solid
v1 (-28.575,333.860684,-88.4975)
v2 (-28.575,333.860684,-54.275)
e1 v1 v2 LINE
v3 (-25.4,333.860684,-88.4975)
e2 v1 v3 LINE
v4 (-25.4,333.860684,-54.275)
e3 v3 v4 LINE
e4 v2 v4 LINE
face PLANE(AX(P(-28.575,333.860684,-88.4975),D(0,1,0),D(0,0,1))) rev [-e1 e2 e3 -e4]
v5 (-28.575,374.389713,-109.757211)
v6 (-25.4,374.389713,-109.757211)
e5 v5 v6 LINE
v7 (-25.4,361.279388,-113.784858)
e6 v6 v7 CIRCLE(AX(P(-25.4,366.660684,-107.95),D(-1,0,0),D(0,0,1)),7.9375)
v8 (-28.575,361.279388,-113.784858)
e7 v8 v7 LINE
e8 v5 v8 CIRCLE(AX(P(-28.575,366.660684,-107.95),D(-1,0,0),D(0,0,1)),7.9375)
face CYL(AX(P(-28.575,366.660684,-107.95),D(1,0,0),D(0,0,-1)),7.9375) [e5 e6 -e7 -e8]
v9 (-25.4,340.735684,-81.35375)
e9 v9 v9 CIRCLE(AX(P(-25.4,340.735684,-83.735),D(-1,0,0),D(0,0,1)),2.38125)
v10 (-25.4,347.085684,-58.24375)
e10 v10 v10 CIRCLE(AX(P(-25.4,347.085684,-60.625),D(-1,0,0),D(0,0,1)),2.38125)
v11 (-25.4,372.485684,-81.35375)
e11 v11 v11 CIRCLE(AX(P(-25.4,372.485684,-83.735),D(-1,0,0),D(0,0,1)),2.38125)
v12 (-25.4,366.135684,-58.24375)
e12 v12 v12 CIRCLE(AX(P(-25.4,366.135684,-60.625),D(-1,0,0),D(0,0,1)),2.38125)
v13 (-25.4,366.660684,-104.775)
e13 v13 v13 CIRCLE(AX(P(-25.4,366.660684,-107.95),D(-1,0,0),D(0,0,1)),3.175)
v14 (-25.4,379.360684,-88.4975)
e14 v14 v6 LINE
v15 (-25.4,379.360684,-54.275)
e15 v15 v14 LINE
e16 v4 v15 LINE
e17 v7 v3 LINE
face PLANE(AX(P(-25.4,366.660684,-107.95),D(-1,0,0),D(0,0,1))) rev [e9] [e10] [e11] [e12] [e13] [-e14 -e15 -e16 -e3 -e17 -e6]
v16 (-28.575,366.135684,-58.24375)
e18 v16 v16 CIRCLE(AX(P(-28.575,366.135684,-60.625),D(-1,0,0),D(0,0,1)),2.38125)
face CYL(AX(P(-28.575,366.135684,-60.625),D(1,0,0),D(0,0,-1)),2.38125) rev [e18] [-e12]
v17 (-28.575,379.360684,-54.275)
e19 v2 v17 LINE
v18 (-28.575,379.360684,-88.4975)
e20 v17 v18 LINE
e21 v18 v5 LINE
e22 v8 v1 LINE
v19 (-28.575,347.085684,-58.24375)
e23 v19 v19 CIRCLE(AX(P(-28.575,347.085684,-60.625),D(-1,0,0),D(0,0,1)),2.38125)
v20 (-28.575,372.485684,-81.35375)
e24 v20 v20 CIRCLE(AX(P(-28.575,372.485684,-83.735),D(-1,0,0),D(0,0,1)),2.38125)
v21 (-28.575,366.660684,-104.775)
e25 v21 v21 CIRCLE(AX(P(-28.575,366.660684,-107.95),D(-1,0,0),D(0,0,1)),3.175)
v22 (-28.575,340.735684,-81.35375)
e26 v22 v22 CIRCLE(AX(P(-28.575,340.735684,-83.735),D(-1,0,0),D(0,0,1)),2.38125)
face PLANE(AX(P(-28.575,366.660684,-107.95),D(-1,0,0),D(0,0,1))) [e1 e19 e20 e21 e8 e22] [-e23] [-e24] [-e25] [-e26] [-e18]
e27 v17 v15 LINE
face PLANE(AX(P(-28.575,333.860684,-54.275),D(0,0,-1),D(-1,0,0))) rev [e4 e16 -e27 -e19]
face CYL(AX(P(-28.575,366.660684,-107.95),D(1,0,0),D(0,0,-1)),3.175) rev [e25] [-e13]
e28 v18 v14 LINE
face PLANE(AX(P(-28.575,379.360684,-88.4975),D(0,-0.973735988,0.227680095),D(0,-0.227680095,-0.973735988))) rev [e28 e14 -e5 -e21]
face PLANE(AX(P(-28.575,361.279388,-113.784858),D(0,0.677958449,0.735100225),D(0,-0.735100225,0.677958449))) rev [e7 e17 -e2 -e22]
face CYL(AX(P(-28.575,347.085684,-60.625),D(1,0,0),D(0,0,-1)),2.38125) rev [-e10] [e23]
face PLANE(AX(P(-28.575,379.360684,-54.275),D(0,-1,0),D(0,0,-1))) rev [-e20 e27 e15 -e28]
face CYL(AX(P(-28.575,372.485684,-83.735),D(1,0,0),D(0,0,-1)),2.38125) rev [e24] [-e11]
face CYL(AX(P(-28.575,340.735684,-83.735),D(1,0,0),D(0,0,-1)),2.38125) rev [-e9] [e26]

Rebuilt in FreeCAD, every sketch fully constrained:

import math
import FreeCAD as App
import Part
import Sketcher
Q = App.Units.Quantity

doc = App.newDocument("Part")
params = doc.addObject("Spreadsheet::Sheet", "Params")
for row, (alias, value) in enumerate([
    ("sketch1_diameter", "0.25 in"),
    ("sketch1_diameter2", "0.1875 in"),
    ("sketch1_radius", "0.3125 in"),
    ("pad1_length", "0.125 in"),
], start=1):
    params.set(f"A{row}", alias)
    params.set(f"B{row}", "=" + value)
    params.setAlias(f"B{row}", alias)

body = doc.addObject("PartDesign::Body", "Body")

sketch1 = doc.addObject("Sketcher::SketchObject", "Sketch")
body.addObject(sketch1)
sketch1.AttachmentSupport = (doc.YZ_Plane, [""])
sketch1.MapMode = "FlatFace"
sketch1.AttachmentOffset = App.Placement(App.Vector(0, 0, -1 * 25.4), App.Rotation())
sketch1.addGeometry(Part.LineSegment(App.Vector(379.360684, -54.275, 0), App.Vector(379.360684, -88.4975, 0)), False)
sketch1.addGeometry(Part.LineSegment(App.Vector(379.360684, -88.4975, 0), App.Vector(374.389713, -109.757211, 0)), False)
sketch1.addGeometry(Part.ArcOfCircle(Part.Circle(App.Vector(366.660684, -107.95, 0), App.Vector(0, 0, 1), 7.9375), math.radians(-132.684314), math.radians(-13.160528)), False)
sketch1.addGeometry(Part.LineSegment(App.Vector(361.279388, -113.784858, 0), App.Vector(333.860684, -88.4975, 0)), False)
sketch1.addGeometry(Part.LineSegment(App.Vector(333.860684, -88.4975, 0), App.Vector(333.860684, -54.275, 0)), False)
sketch1.addGeometry(Part.LineSegment(App.Vector(333.860684, -54.275, 0), App.Vector(379.360684, -54.275, 0)), False)
sketch1.addGeometry(Part.Circle(App.Vector(340.735684, -83.735, 0), App.Vector(0, 0, 1), 2.38125), False)
sketch1.addGeometry(Part.Circle(App.Vector(347.085684, -60.625, 0), App.Vector(0, 0, 1), 2.38125), False)
sketch1.addGeometry(Part.Circle(App.Vector(366.660684, -107.95, 0), App.Vector(0, 0, 1), 3.175), False)
sketch1.addGeometry(Part.Circle(App.Vector(372.485684, -83.735, 0), App.Vector(0, 0, 1), 2.38125), False)
sketch1.addGeometry(Part.Circle(App.Vector(366.135684, -60.625, 0), App.Vector(0, 0, 1), 2.38125), False)
sketch1.addConstraint(Sketcher.Constraint("Coincident", 0, 2, 1, 1))
sketch1.addConstraint(Sketcher.Constraint("Tangent", 1, 2, 2, 2))
sketch1.addConstraint(Sketcher.Constraint("Tangent", 2, 1, 3, 1))
sketch1.addConstraint(Sketcher.Constraint("Coincident", 3, 2, 4, 1))
sketch1.addConstraint(Sketcher.Constraint("Coincident", 4, 2, 5, 1))
sketch1.addConstraint(Sketcher.Constraint("Coincident", 5, 2, 0, 1))
sketch1.addConstraint(Sketcher.Constraint("Vertical", 0))
sketch1.addConstraint(Sketcher.Constraint("Vertical", 4))
sketch1.addConstraint(Sketcher.Constraint("Horizontal", 5))
sketch1.addConstraint(Sketcher.Constraint("Coincident", 8, 3, 2, 3))
sketch1.addConstraint(Sketcher.Constraint("Equal", 6, 7))
sketch1.addConstraint(Sketcher.Constraint("Equal", 7, 9))
sketch1.addConstraint(Sketcher.Constraint("Equal", 9, 10))
sketch1.addConstraint(Sketcher.Constraint("Horizontal", 6, 3, 9, 3))
sketch1.addConstraint(Sketcher.Constraint("Horizontal", 7, 3, 10, 3))
sketch1.addConstraint(Sketcher.Constraint("Horizontal", 0, 2, 3, 2))
sketch1.addConstraint(Sketcher.Constraint("Diameter", 8, Q("0.25 in")))
sketch1.addConstraint(Sketcher.Constraint("Diameter", 6, Q("0.1875 in")))
sketch1.addConstraint(Sketcher.Constraint("Radius", 2, Q("0.3125 in")))
sketch1.addConstraint(Sketcher.Constraint("DistanceX", 7, 3, 9, 3, Q("1 in")))
sketch1.addConstraint(Sketcher.Constraint("DistanceX", 6, 3, 10, 3, Q("1 in")))
sketch1.addConstraint(Sketcher.Constraint("DistanceX", 8, 3, 0, 2, Q("0.5 in")))
sketch1.addConstraint(Sketcher.Constraint("DistanceY", 2, 3, -1, 1, Q("4.25 in")))
sketch1.addConstraint(Sketcher.Constraint("DistanceX", 6, 3, 7, 3, Q("0.25 in")))
sketch1.addConstraint(Sketcher.Constraint("DistanceY", 7, 3, 4, 2, Q("0.25 in")))
sketch1.addConstraint(Sketcher.Constraint("DistanceY", 0, 2, 9, 3, Q("0.1875 in")))
sketch1.addConstraint(Sketcher.Constraint("DistanceX", 5, 1, 5, 2, Q("45.5 mm")))
sketch1.addConstraint(Sketcher.Constraint("DistanceY", 0, 2, 0, 1, Q("34.2225 mm")))
sketch1.addConstraint(Sketcher.Constraint("DistanceY", 6, 3, -1, 1, Q("83.735 mm")))
sketch1.addConstraint(Sketcher.Constraint("DistanceX", 6, 3, 2, 3, Q("25.925 mm")))
sketch1.addConstraint(Sketcher.Constraint("DistanceX", -1, 1, 2, 1, Q("361.279388 mm")))
sketch1.setExpression("Constraints[16]", "Params.sketch1_diameter")
sketch1.setExpression("Constraints[17]", "Params.sketch1_diameter2")
sketch1.setExpression("Constraints[18]", "Params.sketch1_radius")
pad1 = doc.addObject("PartDesign::Pad", "Pad")
body.addObject(pad1)
pad1.Profile = sketch1
pad1.setExpression("Length", "Params.pad1_length")
pad1.Reversed = True

doc.recompute()
